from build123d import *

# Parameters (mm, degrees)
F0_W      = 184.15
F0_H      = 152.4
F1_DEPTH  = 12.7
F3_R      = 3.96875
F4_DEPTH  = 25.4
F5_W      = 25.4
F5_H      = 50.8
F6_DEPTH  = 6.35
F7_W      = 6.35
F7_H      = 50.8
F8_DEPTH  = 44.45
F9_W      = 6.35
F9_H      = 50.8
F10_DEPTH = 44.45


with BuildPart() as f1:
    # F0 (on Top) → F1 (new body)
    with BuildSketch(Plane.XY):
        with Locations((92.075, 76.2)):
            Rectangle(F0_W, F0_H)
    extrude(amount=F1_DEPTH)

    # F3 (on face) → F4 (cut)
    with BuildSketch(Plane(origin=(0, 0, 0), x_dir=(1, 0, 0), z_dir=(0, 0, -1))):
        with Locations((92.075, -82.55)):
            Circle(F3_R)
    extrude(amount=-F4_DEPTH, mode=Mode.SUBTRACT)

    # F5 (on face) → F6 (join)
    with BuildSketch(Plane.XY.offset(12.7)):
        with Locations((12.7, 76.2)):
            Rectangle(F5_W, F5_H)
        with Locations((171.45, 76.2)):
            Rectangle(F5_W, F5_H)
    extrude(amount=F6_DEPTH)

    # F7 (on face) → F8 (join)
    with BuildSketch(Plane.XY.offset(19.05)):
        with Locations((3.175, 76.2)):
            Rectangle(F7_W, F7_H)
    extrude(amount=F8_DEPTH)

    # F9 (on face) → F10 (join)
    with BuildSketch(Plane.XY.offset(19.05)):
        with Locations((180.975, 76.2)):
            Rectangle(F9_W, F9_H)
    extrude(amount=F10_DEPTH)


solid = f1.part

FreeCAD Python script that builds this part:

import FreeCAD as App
import Part
import Sketcher
Q = App.Units.Quantity


def add_polygon(sketch, points):
    """Adds a closed chain of lines whose ends are joined by coincident constraints."""
    first, n = sketch.GeometryCount, len(points)
    for a, b in zip(points, points[1:] + points[:1]):
        sketch.addGeometry(Part.LineSegment(App.Vector(*a, 0), App.Vector(*b, 0)), False)
    for i in range(n):
        sketch.addConstraint(Sketcher.Constraint("Coincident", first + i, 2, first + (i + 1) % n, 1))

doc = App.newDocument("Part")
body = doc.addObject("PartDesign::Body", "Body")

sketch1 = doc.addObject("Sketcher::SketchObject", "Sketch")
body.addObject(sketch1)
sketch1.AttachmentSupport = (doc.XY_Plane, [""])
sketch1.MapMode = "FlatFace"
add_polygon(sketch1, [(0, 152), (0, 0), (184, 0), (184, 152)])
sketch1.addConstraint(Sketcher.Constraint("Vertical", 0))
sketch1.addConstraint(Sketcher.Constraint("Horizontal", 1))
sketch1.addConstraint(Sketcher.Constraint("Vertical", 2))
sketch1.addConstraint(Sketcher.Constraint("Horizontal", 3))
sketch1.addConstraint(Sketcher.Constraint("Coincident", 0, 2, -1, 1))
sketch1.addConstraint(Sketcher.Constraint("DistanceY", 0, 2, 0, 1, Q("6 in")))
sketch1.addConstraint(Sketcher.Constraint("DistanceX", 1, 1, 1, 2, Q("7.25 in")))
pad1 = doc.addObject("PartDesign::Pad", "Pad")
body.addObject(pad1)
pad1.Profile = sketch1
pad1.Length = Q("0.5 in")

sketch2 = doc.addObject("Sketcher::SketchObject", "Sketch001")
body.addObject(sketch2)
sketch2.AttachmentSupport = (doc.XY_Plane, [""])
sketch2.MapMode = "FlatFace"
sketch2.addGeometry(Part.Circle(App.Vector(92.1, 82.5, 0), App.Vector(0, 0, 1), 4), False)
sketch2.addConstraint(Sketcher.Constraint("Diameter", 0, Q("0.3125 in")))
sketch2.addConstraint(Sketcher.Constraint("DistanceY", -1, 1, 0, 3, Q("3.25 in")))
sketch2.addConstraint(Sketcher.Constraint("DistanceX", -1, 1, 0, 3, Q("3.625 in")))
pocket1 = doc.addObject("PartDesign::Pocket", "Pocket")
body.addObject(pocket1)
pocket1.Profile = sketch2
pocket1.Length = Q("1 in")
pocket1.Reversed = True

sketch3 = doc.addObject("Sketcher::SketchObject", "Sketch002")
body.addObject(sketch3)
sketch3.AttachmentSupport = (doc.XY_Plane, [""])
sketch3.MapMode = "FlatFace"
sketch3.AttachmentOffset = App.Placement(App.Vector(0, 0, 0.5 * 25.4), App.Rotation())
add_polygon(sketch3, [(0, 102), (0, 51), (25, 51), (25, 102)])
add_polygon(sketch3, [(159, 102), (159, 51), (184, 51), (184, 102)])
sketch3.addConstraint(Sketcher.Constraint("Vertical", 0))
sketch3.addConstraint(Sketcher.Constraint("Horizontal", 1))
sketch3.addConstraint(Sketcher.Constraint("Vertical", 2))
sketch3.addConstraint(Sketcher.Constraint("Horizontal", 3))
sketch3.addConstraint(Sketcher.Constraint("Vertical", 4))
sketch3.addConstraint(Sketcher.Constraint("Horizontal", 5))
sketch3.addConstraint(Sketcher.Constraint("Vertical", 6))
sketch3.addConstraint(Sketcher.Constraint("Horizontal", 7))
sketch3.addConstraint(Sketcher.Constraint("PointOnObject", 0, 2, -2))
sketch3.addConstraint(Sketcher.Constraint("Horizontal", 1, 2, 4, 2))
sketch3.addConstraint(Sketcher.Constraint("Horizontal", 3, 2, 6, 2))
sketch3.addConstraint(Sketcher.Constraint("Equal", 3, 5))
sketch3.addConstraint(Sketcher.Constraint("DistanceX", 1, 1, 1, 2, Q("1 in")))
sketch3.addConstraint(Sketcher.Constraint("DistanceY", 0, 2, 0, 1, Q("2 in")))
sketch3.addConstraint(Sketcher.Constraint("DistanceY", -1, 1, 0, 2, Q("2 in")))
sketch3.addConstraint(Sketcher.Constraint("DistanceX", -1, 1, 4, 2, Q("6.25 in")))
pad2 = doc.addObject("PartDesign::Pad", "Pad001")
body.addObject(pad2)
pad2.Profile = sketch3
pad2.Length = Q("0.25 in")

sketch4 = doc.addObject("Sketcher::SketchObject", "Sketch003")
body.addObject(sketch4)
sketch4.AttachmentSupport = (doc.XY_Plane, [""])
sketch4.MapMode = "FlatFace"
sketch4.AttachmentOffset = App.Placement(App.Vector(0, 0, 0.75 * 25.4), App.Rotation())
add_polygon(sketch4, [(0, 102), (0, 51), (6, 51), (6, 102)])
sketch4.addConstraint(Sketcher.Constraint("Vertical", 0))
sketch4.addConstraint(Sketcher.Constraint("Horizontal", 1))
sketch4.addConstraint(Sketcher.Constraint("Vertical", 2))
sketch4.addConstraint(Sketcher.Constraint("Horizontal", 3))
sketch4.addConstraint(Sketcher.Constraint("PointOnObject", 0, 2, -2))
sketch4.addConstraint(Sketcher.Constraint("DistanceY", 0, 2, 0, 1, Q("2 in")))
sketch4.addConstraint(Sketcher.Constraint("DistanceY", -1, 1, 0, 2, Q("2 in")))
sketch4.addConstraint(Sketcher.Constraint("DistanceX", 1, 1, 1, 2, Q("0.25 in")))
pad3 = doc.addObject("PartDesign::Pad", "Pad002")
body.addObject(pad3)
pad3.Profile = sketch4
pad3.Length = Q("1.75 in")

sketch5 = doc.addObject("Sketcher::SketchObject", "Sketch004")
body.addObject(sketch5)
sketch5.AttachmentSupport = (doc.XY_Plane, [""])
sketch5.MapMode = "FlatFace"
sketch5.AttachmentOffset = App.Placement(App.Vector(0, 0, 0.75 * 25.4), App.Rotation())
add_polygon(sketch5, [(178, 102), (178, 51), (184, 51), (184, 102)])
sketch5.addConstraint(Sketcher.Constraint("Vertical", 0))
sketch5.addConstraint(Sketcher.Constraint("Horizontal", 1))
sketch5.addConstraint(Sketcher.Constraint("Vertical", 2))
sketch5.addConstraint(Sketcher.Constraint("Horizontal", 3))
sketch5.addConstraint(Sketcher.Constraint("DistanceY", 0, 2, 0, 1, Q("2 in")))
sketch5.addConstraint(Sketcher.Constraint("DistanceX", -1, 1, 0, 2, Q("7 in")))
sketch5.addConstraint(Sketcher.Constraint("DistanceY", -1, 1, 0, 2, Q("2 in")))
sketch5.addConstraint(Sketcher.Constraint("DistanceX", 1, 1, 1, 2, Q("0.25 in")))
pad4 = doc.addObject("PartDesign::Pad", "Pad003")
body.addObject(pad4)
pad4.Profile = sketch5
pad4.Length = Q("1.75 in")

doc.recompute()
